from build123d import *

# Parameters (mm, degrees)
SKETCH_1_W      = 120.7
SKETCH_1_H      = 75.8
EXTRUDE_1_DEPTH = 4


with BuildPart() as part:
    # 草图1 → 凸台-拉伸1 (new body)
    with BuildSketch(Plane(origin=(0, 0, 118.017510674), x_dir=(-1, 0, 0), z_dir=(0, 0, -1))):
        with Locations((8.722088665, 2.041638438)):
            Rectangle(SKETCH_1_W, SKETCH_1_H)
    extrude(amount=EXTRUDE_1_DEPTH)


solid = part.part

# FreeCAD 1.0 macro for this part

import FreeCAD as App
import Part
import Sketcher

V = App.Vector
Q = App.Units.Quantity


def add_polygon(sketch, points):
    """Adds a closed chain of lines whose ends are joined by coincident constraints."""
    first, n = sketch.GeometryCount, len(points)
    for a, b in zip(points, points[1:] + points[:1]):
        sketch.addGeometry(Part.LineSegment(App.Vector(*a, 0), App.Vector(*b, 0)), False)
    for i in range(n):
        sketch.addConstraint(Sketcher.Constraint("Coincident", first + i, 2, first + (i + 1) % n, 1))

doc = App.newDocument("Part")
body = doc.addObject("PartDesign::Body", "Body")

# Sketch on XY plane
sketch1 = body.newObject("Sketcher::SketchObject", "Sketch")
sketch1.AttachmentSupport = (doc.getObject("XY_Plane"), [""])
sketch1.MapMode = "FlatFace"
sketch1.AttachmentOffset = App.Placement(V(0, 0, 118.017511), App.Rotation())
add_polygon(sketch1, [(52, 40), (52, -36), (-69, -36), (-69, 40)])  # lines 0-3
sketch1.addConstraint(Sketcher.Constraint("Vertical", 0))
sketch1.addConstraint(Sketcher.Constraint("Horizontal", 1))
sketch1.addConstraint(Sketcher.Constraint("Vertical", 2))
sketch1.addConstraint(Sketcher.Constraint("Horizontal", 3))
sketch1.addConstraint(Sketcher.Constraint("DistanceX", 1, 2, 1, 1, Q("120.7 mm")))
sketch1.addConstraint(Sketcher.Constraint("DistanceY", 0, 2, 0, 1, Q("75.8 mm")))
sketch1.addConstraint(Sketcher.Constraint("DistanceX", -1, 1, 0, 2, Q("51.627911 mm")))
sketch1.addConstraint(Sketcher.Constraint("DistanceY", 0, 2, -1, 1, Q("35.858362 mm")))
pad1 = body.newObject("PartDesign::Pad", "Pad")
pad1.Profile = sketch1
pad1.Length = 4
pad1.Reversed = True

doc.recompute()
